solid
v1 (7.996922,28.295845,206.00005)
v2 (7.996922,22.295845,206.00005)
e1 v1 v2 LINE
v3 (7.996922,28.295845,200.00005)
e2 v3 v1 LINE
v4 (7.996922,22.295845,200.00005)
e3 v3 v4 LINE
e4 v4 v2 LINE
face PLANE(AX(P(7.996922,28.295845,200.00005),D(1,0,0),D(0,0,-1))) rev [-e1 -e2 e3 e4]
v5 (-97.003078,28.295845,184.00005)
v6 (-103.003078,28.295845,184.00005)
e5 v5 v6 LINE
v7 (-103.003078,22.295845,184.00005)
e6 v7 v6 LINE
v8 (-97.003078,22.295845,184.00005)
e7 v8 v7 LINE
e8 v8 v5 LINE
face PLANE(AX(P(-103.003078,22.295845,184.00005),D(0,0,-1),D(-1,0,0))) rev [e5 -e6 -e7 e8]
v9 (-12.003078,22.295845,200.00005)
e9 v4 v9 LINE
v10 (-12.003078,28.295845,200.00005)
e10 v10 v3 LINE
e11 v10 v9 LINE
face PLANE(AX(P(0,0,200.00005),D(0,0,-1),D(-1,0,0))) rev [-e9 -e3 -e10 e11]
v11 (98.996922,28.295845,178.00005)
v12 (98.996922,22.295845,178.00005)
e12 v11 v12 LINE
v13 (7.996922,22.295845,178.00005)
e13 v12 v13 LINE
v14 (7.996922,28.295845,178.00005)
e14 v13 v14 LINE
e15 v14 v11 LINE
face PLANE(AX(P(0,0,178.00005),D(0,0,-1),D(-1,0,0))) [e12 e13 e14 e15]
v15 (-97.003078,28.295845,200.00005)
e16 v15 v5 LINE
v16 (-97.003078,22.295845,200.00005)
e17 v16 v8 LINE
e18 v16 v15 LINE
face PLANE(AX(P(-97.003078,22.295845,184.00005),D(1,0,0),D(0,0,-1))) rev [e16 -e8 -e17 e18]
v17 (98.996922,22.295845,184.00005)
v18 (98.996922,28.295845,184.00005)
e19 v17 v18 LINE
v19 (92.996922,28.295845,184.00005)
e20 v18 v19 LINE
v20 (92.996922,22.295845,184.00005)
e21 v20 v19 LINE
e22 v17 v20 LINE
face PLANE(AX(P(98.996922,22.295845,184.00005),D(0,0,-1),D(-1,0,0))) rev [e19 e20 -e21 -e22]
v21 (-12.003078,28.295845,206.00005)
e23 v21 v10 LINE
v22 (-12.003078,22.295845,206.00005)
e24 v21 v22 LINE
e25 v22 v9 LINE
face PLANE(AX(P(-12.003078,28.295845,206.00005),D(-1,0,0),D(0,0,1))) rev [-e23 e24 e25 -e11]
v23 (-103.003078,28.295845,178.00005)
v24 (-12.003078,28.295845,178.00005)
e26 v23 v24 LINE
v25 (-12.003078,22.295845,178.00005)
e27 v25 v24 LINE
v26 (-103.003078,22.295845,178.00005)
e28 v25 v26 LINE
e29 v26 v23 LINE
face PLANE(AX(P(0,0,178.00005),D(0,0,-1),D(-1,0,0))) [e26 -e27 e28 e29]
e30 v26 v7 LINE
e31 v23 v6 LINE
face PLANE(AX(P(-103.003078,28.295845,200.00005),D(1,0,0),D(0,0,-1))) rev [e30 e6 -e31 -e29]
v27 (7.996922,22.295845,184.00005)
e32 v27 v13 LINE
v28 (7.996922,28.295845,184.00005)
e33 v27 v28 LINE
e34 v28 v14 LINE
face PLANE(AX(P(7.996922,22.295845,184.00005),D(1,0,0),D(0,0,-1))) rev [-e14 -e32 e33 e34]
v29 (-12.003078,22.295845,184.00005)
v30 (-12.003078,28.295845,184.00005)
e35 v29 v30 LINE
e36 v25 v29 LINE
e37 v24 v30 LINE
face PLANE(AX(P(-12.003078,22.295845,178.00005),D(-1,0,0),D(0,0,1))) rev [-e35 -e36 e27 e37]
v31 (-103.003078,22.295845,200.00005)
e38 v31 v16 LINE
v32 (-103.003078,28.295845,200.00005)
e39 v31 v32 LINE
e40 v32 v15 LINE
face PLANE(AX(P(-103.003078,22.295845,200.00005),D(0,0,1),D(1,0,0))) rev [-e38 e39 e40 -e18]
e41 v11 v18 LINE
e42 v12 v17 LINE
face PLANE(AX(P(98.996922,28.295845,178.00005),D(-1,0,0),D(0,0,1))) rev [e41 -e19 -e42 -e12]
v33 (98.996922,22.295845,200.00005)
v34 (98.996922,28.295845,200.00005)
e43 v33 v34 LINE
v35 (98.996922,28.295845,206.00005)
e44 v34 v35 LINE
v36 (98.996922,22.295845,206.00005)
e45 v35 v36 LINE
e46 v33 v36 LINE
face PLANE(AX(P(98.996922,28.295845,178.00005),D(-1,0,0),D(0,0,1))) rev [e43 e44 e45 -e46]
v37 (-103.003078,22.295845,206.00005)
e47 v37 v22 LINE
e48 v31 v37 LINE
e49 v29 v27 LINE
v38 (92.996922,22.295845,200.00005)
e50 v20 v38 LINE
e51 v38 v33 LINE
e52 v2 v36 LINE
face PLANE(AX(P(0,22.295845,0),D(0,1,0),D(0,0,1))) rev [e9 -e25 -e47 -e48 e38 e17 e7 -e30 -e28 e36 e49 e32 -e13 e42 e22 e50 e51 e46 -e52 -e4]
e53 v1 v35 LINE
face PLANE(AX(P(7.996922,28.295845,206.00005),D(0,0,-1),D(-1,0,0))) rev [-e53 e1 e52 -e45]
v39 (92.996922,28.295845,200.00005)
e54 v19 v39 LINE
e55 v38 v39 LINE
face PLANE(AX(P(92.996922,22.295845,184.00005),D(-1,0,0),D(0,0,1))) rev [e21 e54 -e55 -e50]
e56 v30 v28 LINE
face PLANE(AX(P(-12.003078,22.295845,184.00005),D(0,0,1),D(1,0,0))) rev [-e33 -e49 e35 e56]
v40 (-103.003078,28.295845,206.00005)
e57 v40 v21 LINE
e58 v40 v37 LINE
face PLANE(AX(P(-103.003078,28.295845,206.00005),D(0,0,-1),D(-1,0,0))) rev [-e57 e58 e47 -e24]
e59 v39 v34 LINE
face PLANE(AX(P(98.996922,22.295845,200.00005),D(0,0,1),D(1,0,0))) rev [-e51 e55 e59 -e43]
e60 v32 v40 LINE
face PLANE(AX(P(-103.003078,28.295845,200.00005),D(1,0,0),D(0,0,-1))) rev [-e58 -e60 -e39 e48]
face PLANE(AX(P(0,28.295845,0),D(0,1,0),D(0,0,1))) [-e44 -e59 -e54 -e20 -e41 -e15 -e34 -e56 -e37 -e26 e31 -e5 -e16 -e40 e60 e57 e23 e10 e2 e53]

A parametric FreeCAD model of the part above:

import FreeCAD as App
import Part
import Sketcher

V = App.Vector
Q = App.Units.Quantity

doc = App.newDocument("Part")
body = doc.addObject("PartDesign::Body", "Body")

sketch1 = body.newObject("Sketcher::SketchObject", "Sketch")
sketch1.AttachmentSupport = (doc.getObject("XZ_Plane"), [""])
sketch1.MapMode = "FlatFace"
sketch1.AttachmentOffset = App.Placement(V(0, 0, -22.295845), App.Rotation())
sketch1.addGeometry(Part.LineSegment(V(-103.003078, 200.00005, 0), V(-103.003078, 206.00005, 0)), False)
sketch1.addGeometry(Part.LineSegment(V(-103.003078, 206.00005, 0), V(-12.003078, 206.00005, 0)), False)
sketch1.addGeometry(Part.LineSegment(V(-12.003078, 206.00005, 0), V(-12.003078, 200.00005, 0)), False)
sketch1.addGeometry(Part.LineSegment(V(-12.003078, 200.00005, 0), V(-103.003078, 200.00005, 0)), False)
sketch1.addConstraint(Sketcher.Constraint("Coincident", 0, 2, 1, 1))
sketch1.addConstraint(Sketcher.Constraint("Coincident", 1, 2, 2, 1))
sketch1.addConstraint(Sketcher.Constraint("Coincident", 2, 2, 3, 1))
sketch1.addConstraint(Sketcher.Constraint("Coincident", 3, 2, 0, 1))
sketch1.addConstraint(Sketcher.Constraint("Vertical", 0))
sketch1.addConstraint(Sketcher.Constraint("Horizontal", 1))
sketch1.addConstraint(Sketcher.Constraint("Vertical", 2))
sketch1.addConstraint(Sketcher.Constraint("Horizontal", 3))
sketch1.addConstraint(Sketcher.Constraint("DistanceX", 1, 1, 1, 2, Q("91 mm")))
sketch1.addConstraint(Sketcher.Constraint("DistanceY", 0, 1, 0, 2, Q("6 mm")))
sketch1.addConstraint(Sketcher.Constraint("DistanceX", 0, 2, -1, 1, Q("103.003078 mm")))
sketch1.addConstraint(Sketcher.Constraint("DistanceY", -1, 1, 0, 2, Q("206.00005 mm")))
pad1 = body.newObject("PartDesign::Pad", "Pad")
pad1.Profile = sketch1
pad1.Length = 6
pad1.Reversed = True
body2 = doc.addObject("PartDesign::Body", "Body001")

sketch2 = body2.newObject("Sketcher::SketchObject", "Sketch001")
sketch2.AttachmentSupport = (doc.getObject("XZ_Plane001"), [""])
sketch2.MapMode = "FlatFace"
sketch2.AttachmentOffset = App.Placement(V(0, 0, -22.295845), App.Rotation())
sketch2.addGeometry(Part.LineSegment(V(7.996922, 200.00005, 0), V(7.996922, 206.00005, 0)), False)
sketch2.addGeometry(Part.LineSegment(V(7.996922, 206.00005, 0), V(98.996922, 206.00005, 0)), False)
sketch2.addGeometry(Part.LineSegment(V(98.996922, 206.00005, 0), V(98.996922, 200.00005, 0)), False)
sketch2.addGeometry(Part.LineSegment(V(98.996922, 200.00005, 0), V(7.996922, 200.00005, 0)), False)
sketch2.addConstraint(Sketcher.Constraint("Coincident", 0, 2, 1, 1))
sketch2.addConstraint(Sketcher.Constraint("Coincident", 1, 2, 2, 1))
sketch2.addConstraint(Sketcher.Constraint("Coincident", 2, 2, 3, 1))
sketch2.addConstraint(Sketcher.Constraint("Coincident", 3, 2, 0, 1))
sketch2.addConstraint(Sketcher.Constraint("Vertical", 0))
sketch2.addConstraint(Sketcher.Constraint("Horizontal", 1))
sketch2.addConstraint(Sketcher.Constraint("Vertical", 2))
sketch2.addConstraint(Sketcher.Constraint("Horizontal", 3))
sketch2.addConstraint(Sketcher.Constraint("DistanceX", 1, 1, 1, 2, Q("91 mm")))
sketch2.addConstraint(Sketcher.Constraint("DistanceY", 0, 1, 0, 2, Q("6 mm")))
sketch2.addConstraint(Sketcher.Constraint("DistanceX", -1, 1, 0, 2, Q("7.996922 mm")))
sketch2.addConstraint(Sketcher.Constraint("DistanceY", -1, 1, 0, 2, Q("206.00005 mm")))
pad2 = body2.newObject("PartDesign::Pad", "Pad001")
pad2.Profile = sketch2
pad2.Length = 6
pad2.Reversed = True
body.AllowCompound = True
doc.recompute()

boolean = body.newObject("PartDesign::Boolean", "Boolean")
boolean.Type = "Fuse"
boolean.addObjects([body2])

sketch3 = body.newObject("Sketcher::SketchObject", "Sketch002")
sketch3.AttachmentSupport = (doc.getObject("XY_Plane"), [""])
sketch3.MapMode = "FlatFace"
sketch3.AttachmentOffset = App.Placement(V(0, 0, 200.00005), App.Rotation())
sketch3.addGeometry(Part.LineSegment(V(-103, 28, 0), V(99, 28, 0)), False)
sketch3.addGeometry(Part.LineSegment(V(99, 28, 0), V(99, 22, 0)), False)
sketch3.addGeometry(Part.LineSegment(V(99, 22, 0), V(-103, 22, 0)), False)
sketch3.addGeometry(Part.LineSegment(V(-103, 22, 0), V(-103, 28, 0)), False)
sketch3.addConstraint(Sketcher.Constraint("Coincident", 0, 2, 1, 1))
sketch3.addConstraint(Sketcher.Constraint("Coincident", 1, 2, 2, 1))
sketch3.addConstraint(Sketcher.Constraint("Coincident", 2, 2, 3, 1))
sketch3.addConstraint(Sketcher.Constraint("Coincident", 3, 2, 0, 1))
sketch3.addConstraint(Sketcher.Constraint("Horizontal", 0))
sketch3.addConstraint(Sketcher.Constraint("Vertical", 1))
sketch3.addConstraint(Sketcher.Constraint("Horizontal", 2))
sketch3.addConstraint(Sketcher.Constraint("Vertical", 3))
sketch3.addConstraint(Sketcher.Constraint("DistanceX", 0, 1, 0, 2, Q("202 mm")))
sketch3.addConstraint(Sketcher.Constraint("DistanceY", 1, 2, 1, 1, Q("6 mm")))
sketch3.addConstraint(Sketcher.Constraint("DistanceX", -1, 1, 0, 2, Q("98.996922 mm")))
sketch3.addConstraint(Sketcher.Constraint("DistanceY", -1, 1, 0, 2, Q("28.295845 mm")))
pad3 = body.newObject("PartDesign::Pad", "Pad002")
pad3.Profile = sketch3
pad3.Length = 22
pad3.Reversed = True

sketch4 = body.newObject("Sketcher::SketchObject", "Sketch003")
sketch4.AttachmentSupport = (doc.getObject("XZ_Plane"), [""])
sketch4.MapMode = "FlatFace"
sketch4.AttachmentOffset = App.Placement(V(0, 0, -28.295845), App.Rotation())
sketch4.addGeometry(Part.LineSegment(V(-12.003078, 200.00005, 0), V(-12.003078, 206.00005, 0)), False)
sketch4.addGeometry(Part.LineSegment(V(-12.003078, 206.00005, 0), V(7.996922, 206.00005, 0)), False)
sketch4.addGeometry(Part.LineSegment(V(7.996922, 206.00005, 0), V(7.996922, 200.00005, 0)), False)
sketch4.addGeometry(Part.LineSegment(V(7.996922, 200.00005, 0), V(-12.003078, 200.00005, 0)), False)
sketch4.addGeometry(Part.LineSegment(V(-12.003078, 178.00005, 0), V(-12.003078, 184.00005, 0)), False)
sketch4.addGeometry(Part.LineSegment(V(-12.003078, 184.00005, 0), V(7.996922, 184.00005, 0)), False)
sketch4.addGeometry(Part.LineSegment(V(7.996922, 184.00005, 0), V(7.996922, 178.00005, 0)), False)
sketch4.addGeometry(Part.LineSegment(V(7.996922, 178.00005, 0), V(-12.003078, 178.00005, 0)), False)
sketch4.addConstraint(Sketcher.Constraint("Coincident", 0, 2, 1, 1))
sketch4.addConstraint(Sketcher.Constraint("Coincident", 1, 2, 2, 1))
sketch4.addConstraint(Sketcher.Constraint("Coincident", 2, 2, 3, 1))
sketch4.addConstraint(Sketcher.Constraint("Coincident", 3, 2, 0, 1))
sketch4.addConstraint(Sketcher.Constraint("Coincident", 4, 2, 5, 1))
sketch4.addConstraint(Sketcher.Constraint("Coincident", 5, 2, 6, 1))
sketch4.addConstraint(Sketcher.Constraint("Coincident", 6, 2, 7, 1))
sketch4.addConstraint(Sketcher.Constraint("Coincident", 7, 2, 4, 1))
sketch4.addConstraint(Sketcher.Constraint("Vertical", 0))
sketch4.addConstraint(Sketcher.Constraint("Horizontal", 1))
sketch4.addConstraint(Sketcher.Constraint("Vertical", 2))
sketch4.addConstraint(Sketcher.Constraint("Horizontal", 3))
sketch4.addConstraint(Sketcher.Constraint("Vertical", 4))
sketch4.addConstraint(Sketcher.Constraint("Horizontal", 5))
sketch4.addConstraint(Sketcher.Constraint("Vertical", 6))
sketch4.addConstraint(Sketcher.Constraint("Horizontal", 7))
sketch4.addConstraint(Sketcher.Constraint("Vertical", 3, 2, 4, 2))
sketch4.addConstraint(Sketcher.Constraint("Vertical", 2, 2, 5, 2))
sketch4.addConstraint(Sketcher.Constraint("Equal", 2, 4))
sketch4.addConstraint(Sketcher.Constraint("DistanceX", 1, 1, 1, 2, Q("20 mm")))
sketch4.addConstraint(Sketcher.Constraint("DistanceY", 0, 1, 0, 2, Q("6 mm")))
sketch4.addConstraint(Sketcher.Constraint("DistanceY", 4, 2, 3, 2, Q("16 mm")))
sketch4.addConstraint(Sketcher.Constraint("DistanceX", 0, 2, -1, 1, Q("12.003078 mm")))
sketch4.addConstraint(Sketcher.Constraint("DistanceY", -1, 1, 0, 2, Q("206.00005 mm")))
pocket1 = body.newObject("PartDesign::Pocket", "Pocket")
pocket1.Profile = sketch4
pocket1.Length = 6
pocket1.Reversed = True

sketch5 = body.newObject("Sketcher::SketchObject", "Sketch004")
sketch5.AttachmentSupport = (doc.getObject("XZ_Plane"), [""])
sketch5.MapMode = "FlatFace"
sketch5.AttachmentOffset = App.Placement(V(0, 0, -28.295845), App.Rotation())
sketch5.addGeometry(Part.LineSegment(V(92.996922, 184.00005, 0), V(92.996922, 200.00005, 0)), False)
sketch5.addGeometry(Part.LineSegment(V(92.996922, 200.00005, 0), V(98.996922, 200.00005, 0)), False)
sketch5.addGeometry(Part.LineSegment(V(98.996922, 200.00005, 0), V(98.996922, 184.00005, 0)), False)
sketch5.addGeometry(Part.LineSegment(V(98.996922, 184.00005, 0), V(92.996922, 184.00005, 0)), False)
sketch5.addGeometry(Part.LineSegment(V(-103.003078, 184.00005, 0), V(-103.003078, 200.00005, 0)), False)
sketch5.addGeometry(Part.LineSegment(V(-103.003078, 200.00005, 0), V(-97.003078, 200.00005, 0)), False)
sketch5.addGeometry(Part.LineSegment(V(-97.003078, 200.00005, 0), V(-97.003078, 184.00005, 0)), False)
sketch5.addGeometry(Part.LineSegment(V(-97.003078, 184.00005, 0), V(-103.003078, 184.00005, 0)), False)
sketch5.addConstraint(Sketcher.Constraint("Coincident", 0, 2, 1, 1))
sketch5.addConstraint(Sketcher.Constraint("Coincident", 1, 2, 2, 1))
sketch5.addConstraint(Sketcher.Constraint("Coincident", 2, 2, 3, 1))
sketch5.addConstraint(Sketcher.Constraint("Coincident", 3, 2, 0, 1))
sketch5.addConstraint(Sketcher.Constraint("Coincident", 4, 2, 5, 1))
sketch5.addConstraint(Sketcher.Constraint("Coincident", 5, 2, 6, 1))
sketch5.addConstraint(Sketcher.Constraint("Coincident", 6, 2, 7, 1))
sketch5.addConstraint(Sketcher.Constraint("Coincident", 7, 2, 4, 1))
sketch5.addConstraint(Sketcher.Constraint("Vertical", 0))
sketch5.addConstraint(Sketcher.Constraint("Horizontal", 1))
sketch5.addConstraint(Sketcher.Constraint("Vertical", 2))
sketch5.addConstraint(Sketcher.Constraint("Horizontal", 3))
sketch5.addConstraint(Sketcher.Constraint("Vertical", 4))
sketch5.addConstraint(Sketcher.Constraint("Horizontal", 5))
sketch5.addConstraint(Sketcher.Constraint("Vertical", 6))
sketch5.addConstraint(Sketcher.Constraint("Horizontal", 7))
sketch5.addConstraint(Sketcher.Constraint("Horizontal", 1, 2, 4, 2))
sketch5.addConstraint(Sketcher.Constraint("Horizontal", 3, 2, 6, 2))
sketch5.addConstraint(Sketcher.Constraint("Equal", 3, 5))
sketch5.addConstraint(Sketcher.Constraint("DistanceX", 1, 1, 1, 2, Q("6 mm")))
sketch5.addConstraint(Sketcher.Constraint("DistanceY", 0, 1, 0, 2, Q("16 mm")))
sketch5.addConstraint(Sketcher.Constraint("DistanceX", 4, 2, 0, 2, Q("196 mm")))
sketch5.addConstraint(Sketcher.Constraint("DistanceX", -1, 1, 0, 2, Q("92.996922 mm")))
sketch5.addConstraint(Sketcher.Constraint("DistanceY", -1, 1, 0, 2, Q("200.00005 mm")))
pocket2 = body.newObject("PartDesign::Pocket", "Pocket001")
pocket2.Profile = sketch5
pocket2.Length = 6
pocket2.Reversed = True

doc.recompute()
